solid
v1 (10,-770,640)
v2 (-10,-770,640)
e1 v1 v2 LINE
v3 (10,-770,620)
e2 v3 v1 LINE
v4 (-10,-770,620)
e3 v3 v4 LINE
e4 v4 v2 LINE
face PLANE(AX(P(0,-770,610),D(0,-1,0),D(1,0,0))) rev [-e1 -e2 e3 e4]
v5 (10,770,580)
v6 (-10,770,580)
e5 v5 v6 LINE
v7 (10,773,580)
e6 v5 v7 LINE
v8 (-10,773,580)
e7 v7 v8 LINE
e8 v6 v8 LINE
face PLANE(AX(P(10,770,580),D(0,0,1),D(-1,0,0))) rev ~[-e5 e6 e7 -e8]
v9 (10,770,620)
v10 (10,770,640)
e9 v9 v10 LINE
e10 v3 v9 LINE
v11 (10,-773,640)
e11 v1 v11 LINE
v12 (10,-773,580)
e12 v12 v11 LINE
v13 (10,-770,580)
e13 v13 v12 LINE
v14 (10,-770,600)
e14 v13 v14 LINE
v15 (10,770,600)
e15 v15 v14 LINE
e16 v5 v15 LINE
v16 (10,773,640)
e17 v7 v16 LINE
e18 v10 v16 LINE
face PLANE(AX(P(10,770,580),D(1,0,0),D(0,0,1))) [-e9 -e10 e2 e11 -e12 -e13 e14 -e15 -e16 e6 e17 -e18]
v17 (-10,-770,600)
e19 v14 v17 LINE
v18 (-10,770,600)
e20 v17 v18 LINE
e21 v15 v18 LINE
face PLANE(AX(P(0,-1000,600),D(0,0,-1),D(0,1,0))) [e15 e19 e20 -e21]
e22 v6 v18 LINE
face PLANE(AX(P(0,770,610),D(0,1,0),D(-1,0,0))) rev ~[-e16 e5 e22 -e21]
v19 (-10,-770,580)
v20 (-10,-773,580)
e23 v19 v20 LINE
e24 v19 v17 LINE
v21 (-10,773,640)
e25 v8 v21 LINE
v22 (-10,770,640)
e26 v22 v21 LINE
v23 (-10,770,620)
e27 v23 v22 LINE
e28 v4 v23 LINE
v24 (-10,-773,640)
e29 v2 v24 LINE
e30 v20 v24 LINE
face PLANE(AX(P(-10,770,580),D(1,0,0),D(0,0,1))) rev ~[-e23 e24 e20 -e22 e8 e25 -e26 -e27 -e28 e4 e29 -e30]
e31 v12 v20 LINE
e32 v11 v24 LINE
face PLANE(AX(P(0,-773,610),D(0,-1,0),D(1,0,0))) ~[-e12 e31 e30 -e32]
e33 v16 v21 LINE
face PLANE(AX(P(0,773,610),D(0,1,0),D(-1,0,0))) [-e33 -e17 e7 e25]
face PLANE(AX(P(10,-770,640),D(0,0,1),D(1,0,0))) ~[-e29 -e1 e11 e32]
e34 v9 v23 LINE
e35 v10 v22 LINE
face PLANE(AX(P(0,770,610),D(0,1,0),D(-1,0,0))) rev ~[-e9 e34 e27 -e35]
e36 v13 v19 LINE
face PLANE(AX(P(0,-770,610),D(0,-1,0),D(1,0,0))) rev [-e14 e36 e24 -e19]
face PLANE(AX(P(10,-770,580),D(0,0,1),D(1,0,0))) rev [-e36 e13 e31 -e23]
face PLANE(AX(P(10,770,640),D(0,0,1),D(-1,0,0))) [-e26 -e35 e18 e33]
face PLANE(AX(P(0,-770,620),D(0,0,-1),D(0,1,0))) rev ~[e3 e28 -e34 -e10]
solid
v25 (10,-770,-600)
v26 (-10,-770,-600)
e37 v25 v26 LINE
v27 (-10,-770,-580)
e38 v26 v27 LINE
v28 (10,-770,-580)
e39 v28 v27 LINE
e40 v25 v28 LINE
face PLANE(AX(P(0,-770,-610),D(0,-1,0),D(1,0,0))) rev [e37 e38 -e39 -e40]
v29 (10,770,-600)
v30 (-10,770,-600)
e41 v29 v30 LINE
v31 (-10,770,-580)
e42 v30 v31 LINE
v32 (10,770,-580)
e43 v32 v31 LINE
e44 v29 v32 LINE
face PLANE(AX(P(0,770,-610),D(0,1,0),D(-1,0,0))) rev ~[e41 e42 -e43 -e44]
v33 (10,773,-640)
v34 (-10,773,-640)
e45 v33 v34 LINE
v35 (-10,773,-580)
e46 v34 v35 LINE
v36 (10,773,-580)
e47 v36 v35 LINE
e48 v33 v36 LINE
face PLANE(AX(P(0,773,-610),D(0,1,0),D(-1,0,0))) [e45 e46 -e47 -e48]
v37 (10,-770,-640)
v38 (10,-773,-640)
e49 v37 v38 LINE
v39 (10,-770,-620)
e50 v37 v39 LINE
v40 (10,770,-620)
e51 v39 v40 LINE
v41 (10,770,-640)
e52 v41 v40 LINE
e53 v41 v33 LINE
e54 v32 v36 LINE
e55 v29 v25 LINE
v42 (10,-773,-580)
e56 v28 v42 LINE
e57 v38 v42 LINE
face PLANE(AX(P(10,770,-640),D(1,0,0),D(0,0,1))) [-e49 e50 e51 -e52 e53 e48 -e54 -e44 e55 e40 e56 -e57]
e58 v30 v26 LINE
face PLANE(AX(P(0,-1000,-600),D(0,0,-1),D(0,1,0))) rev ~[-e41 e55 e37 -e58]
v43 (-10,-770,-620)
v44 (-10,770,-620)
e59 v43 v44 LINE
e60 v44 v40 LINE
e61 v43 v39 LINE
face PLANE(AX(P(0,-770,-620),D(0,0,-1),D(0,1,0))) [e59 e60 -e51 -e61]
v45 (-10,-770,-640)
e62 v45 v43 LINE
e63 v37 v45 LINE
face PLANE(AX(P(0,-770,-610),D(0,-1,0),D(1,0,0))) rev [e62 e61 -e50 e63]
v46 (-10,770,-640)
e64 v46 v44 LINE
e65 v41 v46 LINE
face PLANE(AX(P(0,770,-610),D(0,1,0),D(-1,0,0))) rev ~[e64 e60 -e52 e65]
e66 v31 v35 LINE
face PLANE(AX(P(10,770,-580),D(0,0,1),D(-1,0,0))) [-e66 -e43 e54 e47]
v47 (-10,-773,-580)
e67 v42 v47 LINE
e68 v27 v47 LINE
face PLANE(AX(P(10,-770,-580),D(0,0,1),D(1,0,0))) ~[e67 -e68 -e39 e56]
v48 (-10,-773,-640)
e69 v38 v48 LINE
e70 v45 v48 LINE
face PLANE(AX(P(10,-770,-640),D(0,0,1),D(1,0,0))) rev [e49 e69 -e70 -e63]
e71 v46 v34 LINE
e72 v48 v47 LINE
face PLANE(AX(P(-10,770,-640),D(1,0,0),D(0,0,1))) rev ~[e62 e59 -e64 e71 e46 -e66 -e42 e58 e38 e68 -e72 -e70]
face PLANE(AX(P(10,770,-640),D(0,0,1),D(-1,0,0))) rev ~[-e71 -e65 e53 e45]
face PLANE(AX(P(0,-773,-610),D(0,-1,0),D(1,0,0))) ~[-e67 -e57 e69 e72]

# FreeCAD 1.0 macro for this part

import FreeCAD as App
import Part
import Sketcher
from FreeCAD import Vector


def add_polygon(sketch, points):
    """Adds a closed chain of lines whose ends are joined by coincident constraints."""
    first, n = sketch.GeometryCount, len(points)
    for a, b in zip(points, points[1:] + points[:1]):
        sketch.addGeometry(Part.LineSegment(App.Vector(*a, 0), App.Vector(*b, 0)), False)
    for i in range(n):
        sketch.addConstraint(Sketcher.Constraint("Coincident", first + i, 2, first + (i + 1) % n, 1))

doc = App.newDocument("Part")
params = doc.addObject("Spreadsheet::Sheet", "Params")
for row, (alias, value) in enumerate([
    ("sketch1_width", "20 mm"),
    ("sketch1_height", "60 mm"),
    ("pad1_length", "3 mm"),
    ("sketch2_width", "2000 mm"),
    ("sketch2_height", "1200 mm"),
    ("pad2_length", "30 mm"),
    ("sketch3_width", "1540 mm"),
    ("sketch3_width2", "1500 mm"),
    ("sketch3_height", "1240 mm"),
    ("sketch3_height2", "1200 mm"),
    ("pad3_length", "20 mm"),
], start=1):
    params.set(f"A{row}", alias)
    params.set(f"B{row}", "=" + value)
    params.setAlias(f"B{row}", alias)

body = doc.addObject("PartDesign::Body", "Body")
body.AllowCompound = True

sketch1 = body.newObject("Sketcher::SketchObject", "Sketch")
sketch1.AttachmentSupport = (doc.getObject("XZ_Plane"), [""])
sketch1.MapMode = "FlatFace"
sketch1.AttachmentOffset = App.Placement(Vector(0, 0, -770), App.Rotation())
add_polygon(sketch1, [(10, 640), (10, 580), (-10, 580), (-10, 640)])
add_polygon(sketch1, [(10, -580), (10, -640), (-10, -640), (-10, -580)])
sketch1.addConstraint(Sketcher.Constraint("Vertical", 0))
sketch1.addConstraint(Sketcher.Constraint("Horizontal", 1))
sketch1.addConstraint(Sketcher.Constraint("Vertical", 2))
sketch1.addConstraint(Sketcher.Constraint("Horizontal", 3))
sketch1.addConstraint(Sketcher.Constraint("Vertical", 4))
sketch1.addConstraint(Sketcher.Constraint("Horizontal", 5))
sketch1.addConstraint(Sketcher.Constraint("Vertical", 6))
sketch1.addConstraint(Sketcher.Constraint("Horizontal", 7))
sketch1.addConstraint(Sketcher.Constraint("Symmetric", 2, 2, 4, 2, -1, 1))
sketch1.addConstraint(Sketcher.Constraint("Symmetric", 0, 2, 6, 2, -1, 1))
sketch1.addConstraint(Sketcher.Constraint("Vertical", 3, 2, 4, 2))
sketch1.addConstraint(Sketcher.Constraint("DistanceX", 1, 2, 1, 1, 20.0))
sketch1.addConstraint(Sketcher.Constraint("DistanceY", 0, 2, 0, 1, 60.0))
sketch1.addConstraint(Sketcher.Constraint("DistanceY", -1, 1, 0, 2, 580.0))
sketch1.setExpression("Constraints[19]", "Params.sketch1_width")
sketch1.setExpression("Constraints[20]", "Params.sketch1_height")
pad1 = body.newObject("PartDesign::Pad", "Pad")
pad1.Profile = sketch1
pad1.setExpression("Length", "Params.pad1_length")
pad1.Reversed = True
body2 = doc.addObject("PartDesign::Body", "Body001")

sketch2 = body2.newObject("Sketcher::SketchObject", "Sketch001")
sketch2.AttachmentSupport = (doc.getObject("YZ_Plane001"), [""])
sketch2.MapMode = "FlatFace"
add_polygon(sketch2, [(-1000, 600), (-1000, -600), (1000, -600), (1000, 600)])
sketch2.addConstraint(Sketcher.Constraint("Vertical", 0))
sketch2.addConstraint(Sketcher.Constraint("Horizontal", 1))
sketch2.addConstraint(Sketcher.Constraint("Vertical", 2))
sketch2.addConstraint(Sketcher.Constraint("Horizontal", 3))
sketch2.addConstraint(Sketcher.Constraint("Symmetric", 0, 2, 2, 2, -1, 1))
sketch2.addConstraint(Sketcher.Constraint("DistanceX", 1, 1, 1, 2, 2000.0))
sketch2.addConstraint(Sketcher.Constraint("DistanceY", 0, 2, 0, 1, 1200.0))
sketch2.setExpression("Constraints[9]", "Params.sketch2_width")
sketch2.setExpression("Constraints[10]", "Params.sketch2_height")
pad2 = body2.newObject("PartDesign::Pad", "Pad001")
pad2.Profile = sketch2
pad2.setExpression("Length", "Params.pad2_length")
pad2.Midplane = True
body3 = doc.addObject("PartDesign::Body", "Body002")
body3.AllowCompound = True

sketch3 = body3.newObject("Sketcher::SketchObject", "Sketch002")
sketch3.AttachmentSupport = (doc.getObject("YZ_Plane002"), [""])
sketch3.MapMode = "FlatFace"
add_polygon(sketch3, [(-770, 620), (-770, -620), (770, -620), (770, 620)])
add_polygon(sketch3, [(750, -600), (-750, -600), (-750, 600), (750, 600)])
sketch3.addConstraint(Sketcher.Constraint("Vertical", 0))
sketch3.addConstraint(Sketcher.Constraint("Horizontal", 1))
sketch3.addConstraint(Sketcher.Constraint("Vertical", 2))
sketch3.addConstraint(Sketcher.Constraint("Horizontal", 3))
sketch3.addConstraint(Sketcher.Constraint("Horizontal", 4))
sketch3.addConstraint(Sketcher.Constraint("Vertical", 5))
sketch3.addConstraint(Sketcher.Constraint("Horizontal", 6))
sketch3.addConstraint(Sketcher.Constraint("Vertical", 7))
sketch3.addConstraint(Sketcher.Constraint("Symmetric", 0, 2, 2, 2, -1, 1))
sketch3.addConstraint(Sketcher.Constraint("Symmetric", 4, 2, 6, 2, -1, 1))
sketch3.addConstraint(Sketcher.Constraint("DistanceX", 1, 1, 1, 2, 1540.0))
sketch3.addConstraint(Sketcher.Constraint("DistanceX", 4, 2, 4, 1, 1500.0))
sketch3.addConstraint(Sketcher.Constraint("DistanceY", 0, 2, 0, 1, 1240.0))
sketch3.addConstraint(Sketcher.Constraint("DistanceY", 5, 1, 5, 2, 1200.0))
sketch3.setExpression("Constraints[18]", "Params.sketch3_width")
sketch3.setExpression("Constraints[19]", "Params.sketch3_width2")
sketch3.setExpression("Constraints[20]", "Params.sketch3_height")
sketch3.setExpression("Constraints[21]", "Params.sketch3_height2")
pad3 = body3.newObject("PartDesign::Pad", "Pad002")
pad3.Profile = sketch3
pad3.setExpression("Length", "Params.pad3_length")
pad3.Midplane = True
doc.recompute()

boolean = body3.newObject("PartDesign::Boolean", "Boolean")
boolean.Type = "Cut"
boolean.addObjects([body2])
body4 = doc.addObject("PartDesign::Body", "Body003")
body4.AllowCompound = True
doc.recompute()

mirroring = doc.addObject("Part::Mirroring", "Mirroring")
mirroring.Source = body
mirroring.Base = Vector(0, 0, 0)
mirroring.Normal = Vector(0, 1, 0)
body4.BaseFeature = mirroring
doc.recompute()

boolean2 = body4.newObject("PartDesign::Boolean", "Boolean001")
boolean2.Type = "Fuse"
boolean2.addObjects([body])
doc.recompute()

boolean3 = body4.newObject("PartDesign::Boolean", "Boolean002")
boolean3.Type = "Fuse"
boolean3.addObjects([body3])
mirroring.Visibility = False

doc.recompute()
